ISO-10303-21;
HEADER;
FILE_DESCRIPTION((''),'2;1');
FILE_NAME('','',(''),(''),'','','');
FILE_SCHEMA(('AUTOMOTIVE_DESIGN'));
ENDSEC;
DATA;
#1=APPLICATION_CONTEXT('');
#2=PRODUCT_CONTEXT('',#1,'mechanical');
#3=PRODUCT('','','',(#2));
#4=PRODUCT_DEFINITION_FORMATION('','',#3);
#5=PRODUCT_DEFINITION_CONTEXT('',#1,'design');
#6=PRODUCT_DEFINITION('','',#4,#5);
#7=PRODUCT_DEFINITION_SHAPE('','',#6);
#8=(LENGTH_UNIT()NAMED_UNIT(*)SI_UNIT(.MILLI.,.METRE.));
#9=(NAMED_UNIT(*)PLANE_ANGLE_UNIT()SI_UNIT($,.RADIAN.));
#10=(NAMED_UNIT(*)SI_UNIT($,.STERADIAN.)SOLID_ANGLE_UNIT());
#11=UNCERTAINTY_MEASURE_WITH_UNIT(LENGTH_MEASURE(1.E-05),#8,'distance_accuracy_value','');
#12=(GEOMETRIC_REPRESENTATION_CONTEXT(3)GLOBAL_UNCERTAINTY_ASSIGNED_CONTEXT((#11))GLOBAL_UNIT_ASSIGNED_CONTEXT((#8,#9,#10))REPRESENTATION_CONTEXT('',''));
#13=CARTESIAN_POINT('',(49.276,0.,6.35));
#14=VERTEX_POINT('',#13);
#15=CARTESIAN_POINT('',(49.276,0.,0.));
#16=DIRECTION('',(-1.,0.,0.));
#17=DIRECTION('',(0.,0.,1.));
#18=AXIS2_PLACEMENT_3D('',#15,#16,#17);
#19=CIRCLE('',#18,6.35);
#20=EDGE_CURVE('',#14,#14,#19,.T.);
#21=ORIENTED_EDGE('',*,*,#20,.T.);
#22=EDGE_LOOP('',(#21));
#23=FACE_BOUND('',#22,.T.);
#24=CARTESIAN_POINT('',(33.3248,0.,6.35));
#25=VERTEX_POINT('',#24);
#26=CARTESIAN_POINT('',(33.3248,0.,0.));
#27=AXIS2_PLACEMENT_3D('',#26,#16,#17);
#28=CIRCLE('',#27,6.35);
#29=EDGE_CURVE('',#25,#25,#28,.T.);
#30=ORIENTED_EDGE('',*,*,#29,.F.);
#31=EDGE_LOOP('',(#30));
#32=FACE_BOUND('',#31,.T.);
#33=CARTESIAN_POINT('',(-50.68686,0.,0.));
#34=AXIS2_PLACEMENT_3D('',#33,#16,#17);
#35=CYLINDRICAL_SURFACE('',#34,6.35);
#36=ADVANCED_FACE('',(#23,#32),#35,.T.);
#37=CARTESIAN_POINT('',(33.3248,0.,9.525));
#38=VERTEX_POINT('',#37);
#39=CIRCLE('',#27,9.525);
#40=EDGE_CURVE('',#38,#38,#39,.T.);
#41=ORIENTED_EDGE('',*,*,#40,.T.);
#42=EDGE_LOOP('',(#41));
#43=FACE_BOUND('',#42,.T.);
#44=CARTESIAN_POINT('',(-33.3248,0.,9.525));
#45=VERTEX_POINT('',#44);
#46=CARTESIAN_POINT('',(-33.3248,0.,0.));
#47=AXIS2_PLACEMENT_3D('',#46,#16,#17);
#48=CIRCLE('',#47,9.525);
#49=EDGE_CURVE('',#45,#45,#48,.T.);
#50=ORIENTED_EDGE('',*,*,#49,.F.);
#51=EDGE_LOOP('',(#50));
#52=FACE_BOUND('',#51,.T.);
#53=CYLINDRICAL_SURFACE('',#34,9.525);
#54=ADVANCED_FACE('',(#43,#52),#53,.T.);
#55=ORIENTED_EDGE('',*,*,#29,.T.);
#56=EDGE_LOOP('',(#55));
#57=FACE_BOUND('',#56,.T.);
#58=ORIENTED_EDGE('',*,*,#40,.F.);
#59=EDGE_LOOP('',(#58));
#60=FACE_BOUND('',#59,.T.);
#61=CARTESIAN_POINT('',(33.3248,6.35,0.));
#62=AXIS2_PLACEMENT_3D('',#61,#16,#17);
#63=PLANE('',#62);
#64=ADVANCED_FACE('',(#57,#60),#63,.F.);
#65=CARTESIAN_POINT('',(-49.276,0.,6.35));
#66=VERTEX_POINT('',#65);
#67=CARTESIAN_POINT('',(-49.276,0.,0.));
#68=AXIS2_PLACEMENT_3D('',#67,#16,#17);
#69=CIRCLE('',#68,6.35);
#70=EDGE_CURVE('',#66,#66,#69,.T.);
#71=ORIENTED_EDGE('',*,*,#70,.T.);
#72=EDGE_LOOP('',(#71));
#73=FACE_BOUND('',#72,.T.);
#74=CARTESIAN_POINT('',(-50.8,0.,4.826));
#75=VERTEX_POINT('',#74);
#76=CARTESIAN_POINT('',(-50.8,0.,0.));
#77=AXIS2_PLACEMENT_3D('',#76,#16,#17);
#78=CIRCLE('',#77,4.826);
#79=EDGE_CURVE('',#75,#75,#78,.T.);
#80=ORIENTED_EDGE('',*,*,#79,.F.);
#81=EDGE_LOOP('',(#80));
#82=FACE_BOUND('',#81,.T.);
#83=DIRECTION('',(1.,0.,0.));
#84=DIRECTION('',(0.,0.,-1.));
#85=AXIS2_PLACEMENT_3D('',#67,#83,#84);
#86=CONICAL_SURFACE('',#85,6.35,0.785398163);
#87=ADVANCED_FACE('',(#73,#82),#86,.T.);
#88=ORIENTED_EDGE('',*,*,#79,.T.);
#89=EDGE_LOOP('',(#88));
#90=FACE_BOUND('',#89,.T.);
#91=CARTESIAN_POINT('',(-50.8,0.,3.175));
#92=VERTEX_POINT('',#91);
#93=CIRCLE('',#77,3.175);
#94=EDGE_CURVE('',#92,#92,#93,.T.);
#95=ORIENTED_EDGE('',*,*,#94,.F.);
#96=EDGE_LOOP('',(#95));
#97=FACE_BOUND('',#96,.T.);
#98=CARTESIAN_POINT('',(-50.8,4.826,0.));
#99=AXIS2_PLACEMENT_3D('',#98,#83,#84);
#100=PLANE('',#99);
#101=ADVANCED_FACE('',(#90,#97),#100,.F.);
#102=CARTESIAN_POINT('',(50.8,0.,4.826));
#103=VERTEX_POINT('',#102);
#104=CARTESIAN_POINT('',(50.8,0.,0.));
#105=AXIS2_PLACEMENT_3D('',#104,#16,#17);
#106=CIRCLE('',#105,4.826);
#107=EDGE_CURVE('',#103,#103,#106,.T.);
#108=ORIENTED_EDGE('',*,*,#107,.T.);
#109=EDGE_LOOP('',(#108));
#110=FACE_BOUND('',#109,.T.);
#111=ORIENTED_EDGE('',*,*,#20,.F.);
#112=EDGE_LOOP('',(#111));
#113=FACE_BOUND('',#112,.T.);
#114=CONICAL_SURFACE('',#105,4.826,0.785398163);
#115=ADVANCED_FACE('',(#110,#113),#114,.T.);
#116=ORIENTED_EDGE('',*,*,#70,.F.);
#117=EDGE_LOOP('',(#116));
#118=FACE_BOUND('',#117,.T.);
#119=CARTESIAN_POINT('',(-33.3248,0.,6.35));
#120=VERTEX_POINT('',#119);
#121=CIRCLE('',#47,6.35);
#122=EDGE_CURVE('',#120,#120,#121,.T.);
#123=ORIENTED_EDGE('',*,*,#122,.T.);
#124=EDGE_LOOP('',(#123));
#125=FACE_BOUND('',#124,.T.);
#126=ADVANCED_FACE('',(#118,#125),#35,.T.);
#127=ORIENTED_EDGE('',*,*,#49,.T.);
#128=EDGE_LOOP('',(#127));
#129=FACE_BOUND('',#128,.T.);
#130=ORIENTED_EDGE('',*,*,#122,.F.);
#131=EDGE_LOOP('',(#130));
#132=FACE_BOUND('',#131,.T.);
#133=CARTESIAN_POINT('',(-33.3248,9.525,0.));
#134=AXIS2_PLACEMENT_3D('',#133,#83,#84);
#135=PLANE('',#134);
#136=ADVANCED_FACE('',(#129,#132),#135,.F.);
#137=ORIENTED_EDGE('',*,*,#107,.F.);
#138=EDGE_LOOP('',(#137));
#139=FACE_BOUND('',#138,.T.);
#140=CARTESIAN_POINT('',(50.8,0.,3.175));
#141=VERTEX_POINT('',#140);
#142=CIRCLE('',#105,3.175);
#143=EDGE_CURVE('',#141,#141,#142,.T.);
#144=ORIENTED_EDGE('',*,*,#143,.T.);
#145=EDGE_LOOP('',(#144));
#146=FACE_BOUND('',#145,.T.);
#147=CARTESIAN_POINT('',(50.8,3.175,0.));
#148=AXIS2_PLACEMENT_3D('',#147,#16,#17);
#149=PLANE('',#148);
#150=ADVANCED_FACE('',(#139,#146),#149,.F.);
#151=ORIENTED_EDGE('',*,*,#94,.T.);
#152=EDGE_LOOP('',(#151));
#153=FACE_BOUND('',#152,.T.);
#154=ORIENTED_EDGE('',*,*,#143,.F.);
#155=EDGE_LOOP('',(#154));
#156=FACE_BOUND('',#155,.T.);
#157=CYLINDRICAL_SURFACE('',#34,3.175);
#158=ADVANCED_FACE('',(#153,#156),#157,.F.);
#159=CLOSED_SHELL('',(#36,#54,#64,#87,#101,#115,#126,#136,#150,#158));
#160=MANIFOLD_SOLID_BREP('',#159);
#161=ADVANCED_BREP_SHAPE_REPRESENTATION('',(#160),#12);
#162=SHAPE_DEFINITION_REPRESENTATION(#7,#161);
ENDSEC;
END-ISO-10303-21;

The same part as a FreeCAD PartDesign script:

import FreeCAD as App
import Part
import Sketcher
from FreeCAD import Vector
Q = App.Units.Quantity


def add_polygon(sketch, points):
    """Adds a closed chain of lines whose ends are joined by coincident constraints."""
    first, n = sketch.GeometryCount, len(points)
    for a, b in zip(points, points[1:] + points[:1]):
        sketch.addGeometry(Part.LineSegment(App.Vector(*a, 0), App.Vector(*b, 0)), False)
    for i in range(n):
        sketch.addConstraint(Sketcher.Constraint("Coincident", first + i, 2, first + (i + 1) % n, 1))

doc = App.newDocument("Part")
body = doc.addObject("PartDesign::Body", "Body")

# Sketch on XY plane
sketch1 = body.newObject("Sketcher::SketchObject", "Sketch")
sketch1.AttachmentSupport = (doc.getObject("XY_Plane"), [""])
sketch1.MapMode = "FlatFace"
add_polygon(sketch1, [(-50.8, 3.2), (50.8, 3.2), (50.8, 4.8), (49.3, 6.3), (33.3, 6.3), (33.3, 9.5), (-33.3, 9.5), (-33.3, 6.3), (-49.3, 6.3), (-50.8, 4.8)])  # lines 0-9
sketch1.addConstraint([
    Sketcher.Constraint("Horizontal", 0),
    Sketcher.Constraint("Vertical", 1),
    Sketcher.Constraint("Horizontal", 3),
    Sketcher.Constraint("Vertical", 4),
    Sketcher.Constraint("Horizontal", 5),
    Sketcher.Constraint("Vertical", 6),
    Sketcher.Constraint("Horizontal", 7),
    Sketcher.Constraint("Vertical", 9),
    Sketcher.Constraint("Symmetric", 3, 2, 6, 2, -2),
    Sketcher.Constraint("Symmetric", 1, 2, 8, 2, -2),
    Sketcher.Constraint("Perpendicular", 2, 8),
    Sketcher.Constraint("Equal", 3, 7),
    Sketcher.Constraint("DistanceX", 0, 1, 0, 2, Q("4 in")),
    Sketcher.Constraint("DistanceX", 3, 2, 3, 1, Q("0.628 in")),
    Sketcher.Constraint("DistanceX", 5, 2, 5, 1, Q("2.624 in")),
    Sketcher.Constraint("DistanceY", 1, 1, 1, 2, Q("0.065 in")),
    Sketcher.Constraint("DistanceY", 4, 1, 4, 2, Q("0.125 in")),
    Sketcher.Constraint("DistanceY", -1, 1, 1, 2, Q("0.19 in")),
])
revolution = body.newObject("PartDesign::Revolution", "Revolution")
revolution.Profile = sketch1
revolution.ReferenceAxis = (sketch1, ["H_Axis"])
revolution.Angle = 360

doc.recompute()
